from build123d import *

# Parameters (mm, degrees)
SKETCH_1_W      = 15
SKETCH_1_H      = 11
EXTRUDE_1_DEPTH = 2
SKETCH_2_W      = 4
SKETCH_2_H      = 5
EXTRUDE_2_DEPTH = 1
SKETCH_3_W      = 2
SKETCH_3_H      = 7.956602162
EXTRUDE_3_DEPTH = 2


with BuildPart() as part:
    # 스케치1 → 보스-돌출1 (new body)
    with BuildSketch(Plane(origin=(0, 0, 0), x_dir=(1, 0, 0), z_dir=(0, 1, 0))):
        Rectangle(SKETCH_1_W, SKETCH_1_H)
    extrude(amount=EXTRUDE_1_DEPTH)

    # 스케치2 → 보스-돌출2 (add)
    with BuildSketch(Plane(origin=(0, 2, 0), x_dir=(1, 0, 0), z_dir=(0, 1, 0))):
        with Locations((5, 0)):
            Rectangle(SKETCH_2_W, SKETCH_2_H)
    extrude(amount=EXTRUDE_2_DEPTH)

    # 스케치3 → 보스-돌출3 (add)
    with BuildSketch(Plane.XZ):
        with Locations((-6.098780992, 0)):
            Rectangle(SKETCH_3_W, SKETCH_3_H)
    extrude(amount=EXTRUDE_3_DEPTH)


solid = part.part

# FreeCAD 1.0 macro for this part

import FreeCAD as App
import Part
import Sketcher
from FreeCAD import Vector


def add_polygon(sketch, points):
    """Adds a closed chain of lines whose ends are joined by coincident constraints."""
    first, n = sketch.GeometryCount, len(points)
    for a, b in zip(points, points[1:] + points[:1]):
        sketch.addGeometry(Part.LineSegment(App.Vector(*a, 0), App.Vector(*b, 0)), False)
    for i in range(n):
        sketch.addConstraint(Sketcher.Constraint("Coincident", first + i, 2, first + (i + 1) % n, 1))

doc = App.newDocument("Part")
body = doc.addObject("PartDesign::Body", "Body")

# Sketch on XZ plane
sketch1 = doc.addObject("Sketcher::SketchObject", "Sketch")
body.addObject(sketch1)
sketch1.AttachmentSupport = (doc.XZ_Plane, [""])
sketch1.MapMode = "FlatFace"
add_polygon(sketch1, [(-8, -6), (-8, 6), (8, 6), (8, -6)])  # lines 0-3
sketch1.addConstraint(Sketcher.Constraint("Vertical", 0))
sketch1.addConstraint(Sketcher.Constraint("Horizontal", 1))
sketch1.addConstraint(Sketcher.Constraint("Vertical", 2))
sketch1.addConstraint(Sketcher.Constraint("Horizontal", 3))
sketch1.addConstraint(Sketcher.Constraint("Symmetric", 0, 2, 2, 2, -1, 1))
sketch1.addConstraint(Sketcher.Constraint("DistanceX", 1, 1, 1, 2, 15.0))
sketch1.addConstraint(Sketcher.Constraint("DistanceY", 0, 1, 0, 2, 11.0))
pad1 = doc.addObject("PartDesign::Pad", "Pad")
body.addObject(pad1)
pad1.Profile = sketch1
pad1.Length = 2
pad1.Reversed = True

# Sketch on XZ plane
sketch2 = doc.addObject("Sketcher::SketchObject", "Sketch001")
body.addObject(sketch2)
sketch2.AttachmentSupport = (doc.XZ_Plane, [""])
sketch2.MapMode = "FlatFace"
sketch2.AttachmentOffset = App.Placement(Vector(0, 0, -2), App.Rotation())
add_polygon(sketch2, [(3, -2.5), (3, 2.5), (7, 2.5), (7, -2.5)])  # lines 0-3
sketch2.addConstraint(Sketcher.Constraint("Vertical", 0))
sketch2.addConstraint(Sketcher.Constraint("Horizontal", 1))
sketch2.addConstraint(Sketcher.Constraint("Vertical", 2))
sketch2.addConstraint(Sketcher.Constraint("Horizontal", 3))
sketch2.addConstraint(Sketcher.Constraint("DistanceX", 1, 1, 1, 2, 4.0))
sketch2.addConstraint(Sketcher.Constraint("DistanceY", 0, 1, 0, 2, 5.0))
sketch2.addConstraint(Sketcher.Constraint("DistanceX", -1, 1, 0, 2, 3.0))
sketch2.addConstraint(Sketcher.Constraint("DistanceY", -1, 1, 0, 2, 2.5))
pad2 = doc.addObject("PartDesign::Pad", "Pad001")
body.addObject(pad2)
pad2.Profile = sketch2
pad2.Length = 1
pad2.Reversed = True

# Sketch on XZ plane
sketch3 = doc.addObject("Sketcher::SketchObject", "Sketch002")
body.addObject(sketch3)
sketch3.AttachmentSupport = (doc.XZ_Plane, [""])
sketch3.MapMode = "FlatFace"
add_polygon(sketch3, [(-7.1, 4), (-7.1, -4), (-5.1, -4), (-5.1, 4)])  # lines 0-3
sketch3.addConstraint(Sketcher.Constraint("Vertical", 0))
sketch3.addConstraint(Sketcher.Constraint("Horizontal", 1))
sketch3.addConstraint(Sketcher.Constraint("Vertical", 2))
sketch3.addConstraint(Sketcher.Constraint("Horizontal", 3))
sketch3.addConstraint(Sketcher.Constraint("DistanceX", 1, 1, 1, 2, 2.0))
sketch3.addConstraint(Sketcher.Constraint("DistanceY", 0, 2, -1, 1, 3.978301))
sketch3.addConstraint(Sketcher.Constraint("DistanceY", -1, 1, 2, 2, 3.978301))
sketch3.addConstraint(Sketcher.Constraint("DistanceX", 0, 2, -1, 1, 7.098781))
pad3 = doc.addObject("PartDesign::Pad", "Pad002")
body.addObject(pad3)
pad3.Profile = sketch3
pad3.Length = 2

doc.recompute()
